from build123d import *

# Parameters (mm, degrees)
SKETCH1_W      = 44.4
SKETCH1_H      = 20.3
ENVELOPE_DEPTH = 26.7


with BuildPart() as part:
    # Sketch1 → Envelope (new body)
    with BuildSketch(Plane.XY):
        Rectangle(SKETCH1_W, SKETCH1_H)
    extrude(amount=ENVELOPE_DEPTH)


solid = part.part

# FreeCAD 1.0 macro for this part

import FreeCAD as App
import Part
import Sketcher
from FreeCAD import Vector


def add_polygon(sketch, points):
    """Adds a closed chain of lines whose ends are joined by coincident constraints."""
    first, n = sketch.GeometryCount, len(points)
    for a, b in zip(points, points[1:] + points[:1]):
        sketch.addGeometry(Part.LineSegment(App.Vector(*a, 0), App.Vector(*b, 0)), False)
    for i in range(n):
        sketch.addConstraint(Sketcher.Constraint("Coincident", first + i, 2, first + (i + 1) % n, 1))

doc = App.newDocument("Part")
body = doc.addObject("PartDesign::Body", "Body")

sketch1 = body.newObject("Sketcher::SketchObject", "Sketch")
sketch1.AttachmentSupport = (doc.getObject("XY_Plane"), [""])
sketch1.MapMode = "FlatFace"
add_polygon(sketch1, [(-22.2, 10.15), (-22.2, -10.15), (22.2, -10.15), (22.2, 10.15)])
sketch1.addConstraint([
    Sketcher.Constraint("Vertical", 0),
    Sketcher.Constraint("Horizontal", 1),
    Sketcher.Constraint("Vertical", 2),
    Sketcher.Constraint("Horizontal", 3),
    Sketcher.Constraint("Symmetric", 0, 2, 2, 2, -1, 1),
    Sketcher.Constraint("DistanceX", 1, 1, 1, 2, 44.4),
    Sketcher.Constraint("DistanceY", 0, 2, 0, 1, 20.3),
])
pad1 = body.newObject("PartDesign::Pad", "Pad")
pad1.Profile = sketch1
pad1.Length = 26.7

doc.recompute()
